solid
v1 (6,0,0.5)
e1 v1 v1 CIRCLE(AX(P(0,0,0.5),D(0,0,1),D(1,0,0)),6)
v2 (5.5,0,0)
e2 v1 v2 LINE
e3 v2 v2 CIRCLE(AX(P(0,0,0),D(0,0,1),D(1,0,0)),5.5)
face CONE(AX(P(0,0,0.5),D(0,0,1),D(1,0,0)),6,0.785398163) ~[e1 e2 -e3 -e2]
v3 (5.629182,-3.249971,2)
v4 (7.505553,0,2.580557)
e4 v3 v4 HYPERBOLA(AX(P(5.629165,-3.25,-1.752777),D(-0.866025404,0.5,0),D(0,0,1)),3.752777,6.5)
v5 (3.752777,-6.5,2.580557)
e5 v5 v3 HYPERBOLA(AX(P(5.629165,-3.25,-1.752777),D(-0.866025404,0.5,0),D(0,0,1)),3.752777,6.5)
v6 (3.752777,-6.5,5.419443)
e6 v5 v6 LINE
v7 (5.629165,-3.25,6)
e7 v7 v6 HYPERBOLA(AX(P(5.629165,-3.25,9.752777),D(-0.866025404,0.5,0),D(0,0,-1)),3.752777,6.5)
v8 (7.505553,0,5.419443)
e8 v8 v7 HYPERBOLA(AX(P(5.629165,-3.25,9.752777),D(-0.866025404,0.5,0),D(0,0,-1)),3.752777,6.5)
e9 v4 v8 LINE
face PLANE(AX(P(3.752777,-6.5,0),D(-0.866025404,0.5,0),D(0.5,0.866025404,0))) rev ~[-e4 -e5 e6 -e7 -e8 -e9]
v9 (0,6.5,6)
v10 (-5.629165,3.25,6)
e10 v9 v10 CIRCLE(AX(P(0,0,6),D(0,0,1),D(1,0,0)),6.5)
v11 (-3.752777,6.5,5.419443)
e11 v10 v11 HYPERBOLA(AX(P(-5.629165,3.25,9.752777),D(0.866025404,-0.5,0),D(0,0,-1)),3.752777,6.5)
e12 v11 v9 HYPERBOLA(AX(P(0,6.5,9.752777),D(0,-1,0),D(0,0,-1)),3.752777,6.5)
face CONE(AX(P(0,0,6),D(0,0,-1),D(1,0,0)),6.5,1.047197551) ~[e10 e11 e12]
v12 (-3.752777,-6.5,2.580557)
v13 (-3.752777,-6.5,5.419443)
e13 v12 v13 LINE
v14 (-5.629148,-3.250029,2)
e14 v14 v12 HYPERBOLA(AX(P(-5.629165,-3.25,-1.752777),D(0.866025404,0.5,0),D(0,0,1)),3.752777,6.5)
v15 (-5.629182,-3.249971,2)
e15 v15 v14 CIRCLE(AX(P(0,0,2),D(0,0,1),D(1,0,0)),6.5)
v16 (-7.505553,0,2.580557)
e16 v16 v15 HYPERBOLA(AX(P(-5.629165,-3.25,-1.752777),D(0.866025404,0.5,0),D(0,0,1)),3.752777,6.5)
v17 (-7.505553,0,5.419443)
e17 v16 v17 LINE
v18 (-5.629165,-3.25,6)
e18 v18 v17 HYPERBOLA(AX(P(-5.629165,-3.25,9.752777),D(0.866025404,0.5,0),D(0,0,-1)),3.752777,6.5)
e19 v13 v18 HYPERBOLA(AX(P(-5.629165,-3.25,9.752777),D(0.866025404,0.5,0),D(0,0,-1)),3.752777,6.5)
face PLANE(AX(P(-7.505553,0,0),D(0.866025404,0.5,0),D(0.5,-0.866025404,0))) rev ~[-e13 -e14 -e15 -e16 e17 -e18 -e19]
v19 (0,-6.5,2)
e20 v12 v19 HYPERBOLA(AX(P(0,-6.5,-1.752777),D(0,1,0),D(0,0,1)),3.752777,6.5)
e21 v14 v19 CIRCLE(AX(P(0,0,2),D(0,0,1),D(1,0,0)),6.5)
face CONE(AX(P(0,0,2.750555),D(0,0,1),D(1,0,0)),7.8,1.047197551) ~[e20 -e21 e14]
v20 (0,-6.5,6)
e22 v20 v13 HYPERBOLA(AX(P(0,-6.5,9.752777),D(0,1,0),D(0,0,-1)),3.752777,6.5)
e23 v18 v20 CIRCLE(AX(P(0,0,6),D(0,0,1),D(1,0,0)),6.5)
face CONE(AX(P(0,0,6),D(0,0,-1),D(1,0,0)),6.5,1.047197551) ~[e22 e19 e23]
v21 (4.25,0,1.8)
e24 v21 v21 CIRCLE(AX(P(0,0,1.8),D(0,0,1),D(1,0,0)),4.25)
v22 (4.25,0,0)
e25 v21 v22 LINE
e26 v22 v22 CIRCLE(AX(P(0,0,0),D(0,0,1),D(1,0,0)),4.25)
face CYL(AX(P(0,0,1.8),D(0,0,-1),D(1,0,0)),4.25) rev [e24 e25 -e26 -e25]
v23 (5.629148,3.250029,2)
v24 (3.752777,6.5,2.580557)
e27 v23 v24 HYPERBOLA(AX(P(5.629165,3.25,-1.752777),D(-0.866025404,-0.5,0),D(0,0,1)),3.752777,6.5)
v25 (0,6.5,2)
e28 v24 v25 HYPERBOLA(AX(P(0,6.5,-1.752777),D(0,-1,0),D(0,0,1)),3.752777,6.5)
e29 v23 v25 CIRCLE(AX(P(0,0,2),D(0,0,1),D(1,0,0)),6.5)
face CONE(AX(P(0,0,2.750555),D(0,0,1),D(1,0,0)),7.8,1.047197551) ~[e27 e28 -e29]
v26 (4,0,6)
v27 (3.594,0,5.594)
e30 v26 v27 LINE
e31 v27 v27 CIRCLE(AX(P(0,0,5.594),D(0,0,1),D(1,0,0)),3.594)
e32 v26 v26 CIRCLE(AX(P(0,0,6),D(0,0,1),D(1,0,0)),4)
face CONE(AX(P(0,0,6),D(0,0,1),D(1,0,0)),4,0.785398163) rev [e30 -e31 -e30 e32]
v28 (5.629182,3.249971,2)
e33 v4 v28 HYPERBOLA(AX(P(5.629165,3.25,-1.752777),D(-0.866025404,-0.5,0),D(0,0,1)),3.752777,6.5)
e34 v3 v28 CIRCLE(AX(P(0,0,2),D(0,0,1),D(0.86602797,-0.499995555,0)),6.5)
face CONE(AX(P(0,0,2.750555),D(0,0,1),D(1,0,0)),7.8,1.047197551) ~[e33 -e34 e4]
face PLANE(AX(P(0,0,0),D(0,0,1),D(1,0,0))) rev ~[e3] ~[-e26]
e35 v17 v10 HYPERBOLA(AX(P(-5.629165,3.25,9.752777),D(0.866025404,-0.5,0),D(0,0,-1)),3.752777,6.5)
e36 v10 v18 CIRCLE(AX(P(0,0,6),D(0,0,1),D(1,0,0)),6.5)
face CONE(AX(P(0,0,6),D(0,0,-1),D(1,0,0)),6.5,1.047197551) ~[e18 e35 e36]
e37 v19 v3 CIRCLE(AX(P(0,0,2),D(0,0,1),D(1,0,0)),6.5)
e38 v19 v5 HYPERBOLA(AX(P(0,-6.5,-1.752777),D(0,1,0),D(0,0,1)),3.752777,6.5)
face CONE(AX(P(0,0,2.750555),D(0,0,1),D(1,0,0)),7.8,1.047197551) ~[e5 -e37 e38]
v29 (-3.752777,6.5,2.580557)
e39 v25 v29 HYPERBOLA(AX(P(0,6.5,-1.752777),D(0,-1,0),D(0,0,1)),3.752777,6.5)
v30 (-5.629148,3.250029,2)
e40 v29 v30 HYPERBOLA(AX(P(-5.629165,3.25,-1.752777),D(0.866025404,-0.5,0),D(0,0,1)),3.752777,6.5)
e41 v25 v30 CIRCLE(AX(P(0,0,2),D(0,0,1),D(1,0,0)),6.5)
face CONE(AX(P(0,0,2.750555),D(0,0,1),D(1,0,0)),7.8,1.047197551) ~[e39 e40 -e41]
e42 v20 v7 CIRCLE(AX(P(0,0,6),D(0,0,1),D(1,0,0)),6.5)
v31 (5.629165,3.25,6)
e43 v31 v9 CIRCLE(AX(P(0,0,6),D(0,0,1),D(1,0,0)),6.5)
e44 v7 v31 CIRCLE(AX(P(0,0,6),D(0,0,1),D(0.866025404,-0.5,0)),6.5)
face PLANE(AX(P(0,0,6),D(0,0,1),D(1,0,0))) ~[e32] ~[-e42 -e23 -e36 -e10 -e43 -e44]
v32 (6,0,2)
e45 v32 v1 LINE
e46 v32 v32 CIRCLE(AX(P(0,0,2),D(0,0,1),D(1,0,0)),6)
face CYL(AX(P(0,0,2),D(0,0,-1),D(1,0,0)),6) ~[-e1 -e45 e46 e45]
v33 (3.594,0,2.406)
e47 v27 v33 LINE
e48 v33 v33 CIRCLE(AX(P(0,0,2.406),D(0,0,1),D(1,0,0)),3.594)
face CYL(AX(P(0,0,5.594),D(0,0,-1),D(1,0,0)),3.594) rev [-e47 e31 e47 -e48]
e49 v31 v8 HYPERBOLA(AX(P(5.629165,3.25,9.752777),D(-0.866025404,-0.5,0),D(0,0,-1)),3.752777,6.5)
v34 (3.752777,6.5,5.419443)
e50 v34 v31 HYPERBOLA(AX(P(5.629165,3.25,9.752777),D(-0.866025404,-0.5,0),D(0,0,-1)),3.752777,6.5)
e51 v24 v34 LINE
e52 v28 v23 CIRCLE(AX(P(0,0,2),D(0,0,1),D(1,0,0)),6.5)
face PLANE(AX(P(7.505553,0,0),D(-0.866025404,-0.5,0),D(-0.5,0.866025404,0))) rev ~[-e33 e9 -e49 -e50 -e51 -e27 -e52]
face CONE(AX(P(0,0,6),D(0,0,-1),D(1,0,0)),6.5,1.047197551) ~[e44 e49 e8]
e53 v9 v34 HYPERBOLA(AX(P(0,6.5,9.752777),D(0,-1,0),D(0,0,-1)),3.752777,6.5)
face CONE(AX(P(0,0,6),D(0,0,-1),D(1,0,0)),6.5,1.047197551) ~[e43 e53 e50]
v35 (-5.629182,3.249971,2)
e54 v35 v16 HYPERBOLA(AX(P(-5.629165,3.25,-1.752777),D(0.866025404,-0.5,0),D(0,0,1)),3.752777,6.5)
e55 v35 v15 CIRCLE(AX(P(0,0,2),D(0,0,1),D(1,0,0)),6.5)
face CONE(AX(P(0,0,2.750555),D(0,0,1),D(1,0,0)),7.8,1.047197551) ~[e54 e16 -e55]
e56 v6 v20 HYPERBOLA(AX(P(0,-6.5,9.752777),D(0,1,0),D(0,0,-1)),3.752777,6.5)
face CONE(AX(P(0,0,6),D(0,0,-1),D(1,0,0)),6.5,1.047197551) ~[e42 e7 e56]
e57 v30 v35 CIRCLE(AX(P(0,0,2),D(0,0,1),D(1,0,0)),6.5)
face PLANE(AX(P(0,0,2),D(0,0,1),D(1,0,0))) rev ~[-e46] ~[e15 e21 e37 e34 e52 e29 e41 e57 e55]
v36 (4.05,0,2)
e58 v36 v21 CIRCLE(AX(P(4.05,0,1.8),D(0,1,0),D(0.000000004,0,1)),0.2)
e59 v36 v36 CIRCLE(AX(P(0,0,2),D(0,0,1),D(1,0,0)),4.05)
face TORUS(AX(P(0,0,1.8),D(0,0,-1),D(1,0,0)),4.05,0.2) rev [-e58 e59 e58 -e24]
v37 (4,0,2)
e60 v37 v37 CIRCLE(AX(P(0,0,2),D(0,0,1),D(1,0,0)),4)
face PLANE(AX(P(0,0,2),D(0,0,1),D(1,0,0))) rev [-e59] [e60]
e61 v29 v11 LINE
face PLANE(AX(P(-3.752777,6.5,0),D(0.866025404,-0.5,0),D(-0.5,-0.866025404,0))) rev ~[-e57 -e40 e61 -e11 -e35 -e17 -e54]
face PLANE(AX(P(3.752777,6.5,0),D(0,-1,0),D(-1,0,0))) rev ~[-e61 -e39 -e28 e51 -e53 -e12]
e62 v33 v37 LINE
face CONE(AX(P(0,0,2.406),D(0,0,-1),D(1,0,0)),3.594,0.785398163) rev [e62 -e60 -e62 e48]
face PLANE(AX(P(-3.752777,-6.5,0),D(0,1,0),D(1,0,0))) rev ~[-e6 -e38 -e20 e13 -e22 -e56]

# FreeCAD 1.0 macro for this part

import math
import FreeCAD as App
import Part
import Sketcher
from FreeCAD import Vector
Q = App.Units.Quantity


def add_polygon(sketch, points):
    """Adds a closed chain of lines whose ends are joined by coincident constraints."""
    first, n = sketch.GeometryCount, len(points)
    for a, b in zip(points, points[1:] + points[:1]):
        sketch.addGeometry(Part.LineSegment(App.Vector(*a, 0), App.Vector(*b, 0)), False)
    for i in range(n):
        sketch.addConstraint(Sketcher.Constraint("Coincident", first + i, 2, first + (i + 1) % n, 1))

doc = App.newDocument("Part")
body = doc.addObject("PartDesign::Body", "Body")

# Sketch on YZ plane
sketch1 = doc.addObject("Sketcher::SketchObject", "Sketch")
body.addObject(sketch1)
sketch1.AttachmentSupport = (doc.YZ_Plane, [""])
sketch1.MapMode = "FlatFace"
add_polygon(sketch1, [(6.5, 6), (0, 6), (0, 0), (5.5, 0), (6, 0.5), (6, 2), (6.5, 2), (7.8, 2.8), (7.8, 5.2)])  # lines 0-8
sketch1.addConstraint([
    Sketcher.Constraint("Horizontal", 0),
    Sketcher.Constraint("Vertical", 1),
    Sketcher.Constraint("Horizontal", 2),
    Sketcher.Constraint("Vertical", 4),
    Sketcher.Constraint("Horizontal", 5),
    Sketcher.Constraint("Vertical", 7),
    Sketcher.Constraint("Coincident", 1, 2, -1, 1),
    Sketcher.Constraint("Vertical", 5, 2, 8, 2),
    Sketcher.Constraint("Equal", 6, 8),
    Sketcher.Constraint("DistanceY", 1, 2, 1, 1, 6.0),
    Sketcher.Constraint("Angle", 3, Q("45 deg")),
    Sketcher.Constraint("Angle", 6, Q("30 deg")),
    Sketcher.Constraint("DistanceX", 0, 2, 0, 1, 6.5),
    Sketcher.Constraint("DistanceX", 2, 1, 2, 2, 5.5),
    Sketcher.Constraint("DistanceX", 5, 1, 5, 2, 0.5),
    Sketcher.Constraint("DistanceY", 4, 1, 4, 2, 1.5),
    Sketcher.Constraint("DistanceX", -1, 1, 6, 2, 7.8),
])
revolution = doc.addObject("PartDesign::Revolution", "Revolution")
body.addObject(revolution)
revolution.Profile = sketch1
revolution.ReferenceAxis = (sketch1, ["V_Axis"])
revolution.Angle = 360

# Sketch on YZ plane
sketch2 = doc.addObject("Sketcher::SketchObject", "Sketch001")
body.addObject(sketch2)
sketch2.AttachmentSupport = (doc.YZ_Plane, [""])
sketch2.MapMode = "FlatFace"
sketch2.addGeometry([
    Part.LineSegment(Vector(4, 6, 0), Vector(0, 6, 0)),  # 0
    Part.LineSegment(Vector(0, 6, 0), Vector(0, 0, 0)),  # 1
    Part.LineSegment(Vector(0, 0, 0), Vector(4.25, 0, 0)),  # 2
    Part.LineSegment(Vector(4.25, 0, 0), Vector(4.25, 1.8, 0)),  # 3
    Part.ArcOfCircle(Part.Circle(Vector(4.05, 1.8, 0), Vector(0, 0, 1), 0.2), math.radians(0), math.radians(90)),  # 4
    Part.LineSegment(Vector(4.05, 2, 0), Vector(4, 2, 0)),  # 5
    Part.LineSegment(Vector(4, 2, 0), Vector(3.594, 2.406, 0)),  # 6
    Part.LineSegment(Vector(3.594, 2.406, 0), Vector(3.594, 5.594, 0)),  # 7
    Part.LineSegment(Vector(3.594, 5.594, 0), Vector(4, 6, 0)),  # 8
], False)
sketch2.addConstraint([
    Sketcher.Constraint("Coincident", 0, 2, 1, 1),
    Sketcher.Constraint("Coincident", 1, 2, 2, 1),
    Sketcher.Constraint("Coincident", 2, 2, 3, 1),
    Sketcher.Constraint("Tangent", 3, 2, 4, 1),
    Sketcher.Constraint("Tangent", 4, 2, 5, 1),
    Sketcher.Constraint("Coincident", 5, 2, 6, 1),
    Sketcher.Constraint("Coincident", 6, 2, 7, 1),
    Sketcher.Constraint("Coincident", 7, 2, 8, 1),
    Sketcher.Constraint("Coincident", 8, 2, 0, 1),
    Sketcher.Constraint("Horizontal", 0),
    Sketcher.Constraint("Vertical", 1),
    Sketcher.Constraint("Horizontal", 2),
    Sketcher.Constraint("Vertical", 3),
    Sketcher.Constraint("Horizontal", 5),
    Sketcher.Constraint("Vertical", 7),
    Sketcher.Constraint("Coincident", 1, 2, -1, 1),
    Sketcher.Constraint("Perpendicular", 6, 8),
    Sketcher.Constraint("Vertical", 5, 2, 8, 2),
    Sketcher.Constraint("Equal", 6, 8),
    Sketcher.Constraint("Radius", 4, 0.2),
    Sketcher.Constraint("DistanceX", 0, 2, 0, 1, 4.0),
    Sketcher.Constraint("DistanceY", 1, 2, 1, 1, 6.0),
    Sketcher.Constraint("DistanceY", 3, 1, 3, 2, 1.8),
    Sketcher.Constraint("DistanceX", 2, 1, 2, 2, 4.25),
    Sketcher.Constraint("DistanceY", 7, 1, 7, 2, 3.188),
])
groove = doc.addObject("PartDesign::Groove", "Groove")
body.addObject(groove)
groove.Profile = sketch2
groove.ReferenceAxis = (sketch2, ["V_Axis"])
groove.Angle = 360

# Sketch on XY plane
sketch3 = doc.addObject("Sketcher::SketchObject", "Sketch002")
body.addObject(sketch3)
sketch3.AttachmentSupport = (doc.XY_Plane, [""])
sketch3.MapMode = "FlatFace"
add_polygon(sketch3, [(-13, 13), (-13, -13), (13, -13), (13, 13)])  # lines 0-3
add_polygon(sketch3, [(-4, -6), (-8, 0), (-4, 6), (4, 6), (8, 0), (4, -6)])  # lines 4-9
sketch3.addConstraint([
    Sketcher.Constraint("Vertical", 0),
    Sketcher.Constraint("Horizontal", 1),
    Sketcher.Constraint("Vertical", 2),
    Sketcher.Constraint("Horizontal", 3),
    Sketcher.Constraint("Horizontal", 6),
    Sketcher.Constraint("Horizontal", 9),
    Sketcher.Constraint("Symmetric", 0, 2, 2, 2, -1, 1),
    Sketcher.Constraint("Symmetric", 4, 2, 7, 2, -1, 1),
    Sketcher.Constraint("Symmetric", 5, 2, 8, 2, -1, 1),
    Sketcher.Constraint("PointOnObject", 4, 2, -1),
    Sketcher.Constraint("Parallel", 4, 7),
    Sketcher.Constraint("Vertical", 6, 2, 8, 2),
    Sketcher.Constraint("Equal", 3, 0),
    Sketcher.Constraint("DistanceX", 1, 1, 1, 2, 26.0),
    Sketcher.Constraint("Angle", 4, Q("120 deg")),
    Sketcher.Constraint("DistanceY", 8, 2, 6, 2, 13.0),
    Sketcher.Constraint("DistanceX", 6, 1, 6, 2, 7.505554),
])
pocket1 = doc.addObject("PartDesign::Pocket", "Pocket")
body.addObject(pocket1)
pocket1.Profile = sketch3
pocket1.Length = 6
pocket1.Reversed = True

doc.recompute()
